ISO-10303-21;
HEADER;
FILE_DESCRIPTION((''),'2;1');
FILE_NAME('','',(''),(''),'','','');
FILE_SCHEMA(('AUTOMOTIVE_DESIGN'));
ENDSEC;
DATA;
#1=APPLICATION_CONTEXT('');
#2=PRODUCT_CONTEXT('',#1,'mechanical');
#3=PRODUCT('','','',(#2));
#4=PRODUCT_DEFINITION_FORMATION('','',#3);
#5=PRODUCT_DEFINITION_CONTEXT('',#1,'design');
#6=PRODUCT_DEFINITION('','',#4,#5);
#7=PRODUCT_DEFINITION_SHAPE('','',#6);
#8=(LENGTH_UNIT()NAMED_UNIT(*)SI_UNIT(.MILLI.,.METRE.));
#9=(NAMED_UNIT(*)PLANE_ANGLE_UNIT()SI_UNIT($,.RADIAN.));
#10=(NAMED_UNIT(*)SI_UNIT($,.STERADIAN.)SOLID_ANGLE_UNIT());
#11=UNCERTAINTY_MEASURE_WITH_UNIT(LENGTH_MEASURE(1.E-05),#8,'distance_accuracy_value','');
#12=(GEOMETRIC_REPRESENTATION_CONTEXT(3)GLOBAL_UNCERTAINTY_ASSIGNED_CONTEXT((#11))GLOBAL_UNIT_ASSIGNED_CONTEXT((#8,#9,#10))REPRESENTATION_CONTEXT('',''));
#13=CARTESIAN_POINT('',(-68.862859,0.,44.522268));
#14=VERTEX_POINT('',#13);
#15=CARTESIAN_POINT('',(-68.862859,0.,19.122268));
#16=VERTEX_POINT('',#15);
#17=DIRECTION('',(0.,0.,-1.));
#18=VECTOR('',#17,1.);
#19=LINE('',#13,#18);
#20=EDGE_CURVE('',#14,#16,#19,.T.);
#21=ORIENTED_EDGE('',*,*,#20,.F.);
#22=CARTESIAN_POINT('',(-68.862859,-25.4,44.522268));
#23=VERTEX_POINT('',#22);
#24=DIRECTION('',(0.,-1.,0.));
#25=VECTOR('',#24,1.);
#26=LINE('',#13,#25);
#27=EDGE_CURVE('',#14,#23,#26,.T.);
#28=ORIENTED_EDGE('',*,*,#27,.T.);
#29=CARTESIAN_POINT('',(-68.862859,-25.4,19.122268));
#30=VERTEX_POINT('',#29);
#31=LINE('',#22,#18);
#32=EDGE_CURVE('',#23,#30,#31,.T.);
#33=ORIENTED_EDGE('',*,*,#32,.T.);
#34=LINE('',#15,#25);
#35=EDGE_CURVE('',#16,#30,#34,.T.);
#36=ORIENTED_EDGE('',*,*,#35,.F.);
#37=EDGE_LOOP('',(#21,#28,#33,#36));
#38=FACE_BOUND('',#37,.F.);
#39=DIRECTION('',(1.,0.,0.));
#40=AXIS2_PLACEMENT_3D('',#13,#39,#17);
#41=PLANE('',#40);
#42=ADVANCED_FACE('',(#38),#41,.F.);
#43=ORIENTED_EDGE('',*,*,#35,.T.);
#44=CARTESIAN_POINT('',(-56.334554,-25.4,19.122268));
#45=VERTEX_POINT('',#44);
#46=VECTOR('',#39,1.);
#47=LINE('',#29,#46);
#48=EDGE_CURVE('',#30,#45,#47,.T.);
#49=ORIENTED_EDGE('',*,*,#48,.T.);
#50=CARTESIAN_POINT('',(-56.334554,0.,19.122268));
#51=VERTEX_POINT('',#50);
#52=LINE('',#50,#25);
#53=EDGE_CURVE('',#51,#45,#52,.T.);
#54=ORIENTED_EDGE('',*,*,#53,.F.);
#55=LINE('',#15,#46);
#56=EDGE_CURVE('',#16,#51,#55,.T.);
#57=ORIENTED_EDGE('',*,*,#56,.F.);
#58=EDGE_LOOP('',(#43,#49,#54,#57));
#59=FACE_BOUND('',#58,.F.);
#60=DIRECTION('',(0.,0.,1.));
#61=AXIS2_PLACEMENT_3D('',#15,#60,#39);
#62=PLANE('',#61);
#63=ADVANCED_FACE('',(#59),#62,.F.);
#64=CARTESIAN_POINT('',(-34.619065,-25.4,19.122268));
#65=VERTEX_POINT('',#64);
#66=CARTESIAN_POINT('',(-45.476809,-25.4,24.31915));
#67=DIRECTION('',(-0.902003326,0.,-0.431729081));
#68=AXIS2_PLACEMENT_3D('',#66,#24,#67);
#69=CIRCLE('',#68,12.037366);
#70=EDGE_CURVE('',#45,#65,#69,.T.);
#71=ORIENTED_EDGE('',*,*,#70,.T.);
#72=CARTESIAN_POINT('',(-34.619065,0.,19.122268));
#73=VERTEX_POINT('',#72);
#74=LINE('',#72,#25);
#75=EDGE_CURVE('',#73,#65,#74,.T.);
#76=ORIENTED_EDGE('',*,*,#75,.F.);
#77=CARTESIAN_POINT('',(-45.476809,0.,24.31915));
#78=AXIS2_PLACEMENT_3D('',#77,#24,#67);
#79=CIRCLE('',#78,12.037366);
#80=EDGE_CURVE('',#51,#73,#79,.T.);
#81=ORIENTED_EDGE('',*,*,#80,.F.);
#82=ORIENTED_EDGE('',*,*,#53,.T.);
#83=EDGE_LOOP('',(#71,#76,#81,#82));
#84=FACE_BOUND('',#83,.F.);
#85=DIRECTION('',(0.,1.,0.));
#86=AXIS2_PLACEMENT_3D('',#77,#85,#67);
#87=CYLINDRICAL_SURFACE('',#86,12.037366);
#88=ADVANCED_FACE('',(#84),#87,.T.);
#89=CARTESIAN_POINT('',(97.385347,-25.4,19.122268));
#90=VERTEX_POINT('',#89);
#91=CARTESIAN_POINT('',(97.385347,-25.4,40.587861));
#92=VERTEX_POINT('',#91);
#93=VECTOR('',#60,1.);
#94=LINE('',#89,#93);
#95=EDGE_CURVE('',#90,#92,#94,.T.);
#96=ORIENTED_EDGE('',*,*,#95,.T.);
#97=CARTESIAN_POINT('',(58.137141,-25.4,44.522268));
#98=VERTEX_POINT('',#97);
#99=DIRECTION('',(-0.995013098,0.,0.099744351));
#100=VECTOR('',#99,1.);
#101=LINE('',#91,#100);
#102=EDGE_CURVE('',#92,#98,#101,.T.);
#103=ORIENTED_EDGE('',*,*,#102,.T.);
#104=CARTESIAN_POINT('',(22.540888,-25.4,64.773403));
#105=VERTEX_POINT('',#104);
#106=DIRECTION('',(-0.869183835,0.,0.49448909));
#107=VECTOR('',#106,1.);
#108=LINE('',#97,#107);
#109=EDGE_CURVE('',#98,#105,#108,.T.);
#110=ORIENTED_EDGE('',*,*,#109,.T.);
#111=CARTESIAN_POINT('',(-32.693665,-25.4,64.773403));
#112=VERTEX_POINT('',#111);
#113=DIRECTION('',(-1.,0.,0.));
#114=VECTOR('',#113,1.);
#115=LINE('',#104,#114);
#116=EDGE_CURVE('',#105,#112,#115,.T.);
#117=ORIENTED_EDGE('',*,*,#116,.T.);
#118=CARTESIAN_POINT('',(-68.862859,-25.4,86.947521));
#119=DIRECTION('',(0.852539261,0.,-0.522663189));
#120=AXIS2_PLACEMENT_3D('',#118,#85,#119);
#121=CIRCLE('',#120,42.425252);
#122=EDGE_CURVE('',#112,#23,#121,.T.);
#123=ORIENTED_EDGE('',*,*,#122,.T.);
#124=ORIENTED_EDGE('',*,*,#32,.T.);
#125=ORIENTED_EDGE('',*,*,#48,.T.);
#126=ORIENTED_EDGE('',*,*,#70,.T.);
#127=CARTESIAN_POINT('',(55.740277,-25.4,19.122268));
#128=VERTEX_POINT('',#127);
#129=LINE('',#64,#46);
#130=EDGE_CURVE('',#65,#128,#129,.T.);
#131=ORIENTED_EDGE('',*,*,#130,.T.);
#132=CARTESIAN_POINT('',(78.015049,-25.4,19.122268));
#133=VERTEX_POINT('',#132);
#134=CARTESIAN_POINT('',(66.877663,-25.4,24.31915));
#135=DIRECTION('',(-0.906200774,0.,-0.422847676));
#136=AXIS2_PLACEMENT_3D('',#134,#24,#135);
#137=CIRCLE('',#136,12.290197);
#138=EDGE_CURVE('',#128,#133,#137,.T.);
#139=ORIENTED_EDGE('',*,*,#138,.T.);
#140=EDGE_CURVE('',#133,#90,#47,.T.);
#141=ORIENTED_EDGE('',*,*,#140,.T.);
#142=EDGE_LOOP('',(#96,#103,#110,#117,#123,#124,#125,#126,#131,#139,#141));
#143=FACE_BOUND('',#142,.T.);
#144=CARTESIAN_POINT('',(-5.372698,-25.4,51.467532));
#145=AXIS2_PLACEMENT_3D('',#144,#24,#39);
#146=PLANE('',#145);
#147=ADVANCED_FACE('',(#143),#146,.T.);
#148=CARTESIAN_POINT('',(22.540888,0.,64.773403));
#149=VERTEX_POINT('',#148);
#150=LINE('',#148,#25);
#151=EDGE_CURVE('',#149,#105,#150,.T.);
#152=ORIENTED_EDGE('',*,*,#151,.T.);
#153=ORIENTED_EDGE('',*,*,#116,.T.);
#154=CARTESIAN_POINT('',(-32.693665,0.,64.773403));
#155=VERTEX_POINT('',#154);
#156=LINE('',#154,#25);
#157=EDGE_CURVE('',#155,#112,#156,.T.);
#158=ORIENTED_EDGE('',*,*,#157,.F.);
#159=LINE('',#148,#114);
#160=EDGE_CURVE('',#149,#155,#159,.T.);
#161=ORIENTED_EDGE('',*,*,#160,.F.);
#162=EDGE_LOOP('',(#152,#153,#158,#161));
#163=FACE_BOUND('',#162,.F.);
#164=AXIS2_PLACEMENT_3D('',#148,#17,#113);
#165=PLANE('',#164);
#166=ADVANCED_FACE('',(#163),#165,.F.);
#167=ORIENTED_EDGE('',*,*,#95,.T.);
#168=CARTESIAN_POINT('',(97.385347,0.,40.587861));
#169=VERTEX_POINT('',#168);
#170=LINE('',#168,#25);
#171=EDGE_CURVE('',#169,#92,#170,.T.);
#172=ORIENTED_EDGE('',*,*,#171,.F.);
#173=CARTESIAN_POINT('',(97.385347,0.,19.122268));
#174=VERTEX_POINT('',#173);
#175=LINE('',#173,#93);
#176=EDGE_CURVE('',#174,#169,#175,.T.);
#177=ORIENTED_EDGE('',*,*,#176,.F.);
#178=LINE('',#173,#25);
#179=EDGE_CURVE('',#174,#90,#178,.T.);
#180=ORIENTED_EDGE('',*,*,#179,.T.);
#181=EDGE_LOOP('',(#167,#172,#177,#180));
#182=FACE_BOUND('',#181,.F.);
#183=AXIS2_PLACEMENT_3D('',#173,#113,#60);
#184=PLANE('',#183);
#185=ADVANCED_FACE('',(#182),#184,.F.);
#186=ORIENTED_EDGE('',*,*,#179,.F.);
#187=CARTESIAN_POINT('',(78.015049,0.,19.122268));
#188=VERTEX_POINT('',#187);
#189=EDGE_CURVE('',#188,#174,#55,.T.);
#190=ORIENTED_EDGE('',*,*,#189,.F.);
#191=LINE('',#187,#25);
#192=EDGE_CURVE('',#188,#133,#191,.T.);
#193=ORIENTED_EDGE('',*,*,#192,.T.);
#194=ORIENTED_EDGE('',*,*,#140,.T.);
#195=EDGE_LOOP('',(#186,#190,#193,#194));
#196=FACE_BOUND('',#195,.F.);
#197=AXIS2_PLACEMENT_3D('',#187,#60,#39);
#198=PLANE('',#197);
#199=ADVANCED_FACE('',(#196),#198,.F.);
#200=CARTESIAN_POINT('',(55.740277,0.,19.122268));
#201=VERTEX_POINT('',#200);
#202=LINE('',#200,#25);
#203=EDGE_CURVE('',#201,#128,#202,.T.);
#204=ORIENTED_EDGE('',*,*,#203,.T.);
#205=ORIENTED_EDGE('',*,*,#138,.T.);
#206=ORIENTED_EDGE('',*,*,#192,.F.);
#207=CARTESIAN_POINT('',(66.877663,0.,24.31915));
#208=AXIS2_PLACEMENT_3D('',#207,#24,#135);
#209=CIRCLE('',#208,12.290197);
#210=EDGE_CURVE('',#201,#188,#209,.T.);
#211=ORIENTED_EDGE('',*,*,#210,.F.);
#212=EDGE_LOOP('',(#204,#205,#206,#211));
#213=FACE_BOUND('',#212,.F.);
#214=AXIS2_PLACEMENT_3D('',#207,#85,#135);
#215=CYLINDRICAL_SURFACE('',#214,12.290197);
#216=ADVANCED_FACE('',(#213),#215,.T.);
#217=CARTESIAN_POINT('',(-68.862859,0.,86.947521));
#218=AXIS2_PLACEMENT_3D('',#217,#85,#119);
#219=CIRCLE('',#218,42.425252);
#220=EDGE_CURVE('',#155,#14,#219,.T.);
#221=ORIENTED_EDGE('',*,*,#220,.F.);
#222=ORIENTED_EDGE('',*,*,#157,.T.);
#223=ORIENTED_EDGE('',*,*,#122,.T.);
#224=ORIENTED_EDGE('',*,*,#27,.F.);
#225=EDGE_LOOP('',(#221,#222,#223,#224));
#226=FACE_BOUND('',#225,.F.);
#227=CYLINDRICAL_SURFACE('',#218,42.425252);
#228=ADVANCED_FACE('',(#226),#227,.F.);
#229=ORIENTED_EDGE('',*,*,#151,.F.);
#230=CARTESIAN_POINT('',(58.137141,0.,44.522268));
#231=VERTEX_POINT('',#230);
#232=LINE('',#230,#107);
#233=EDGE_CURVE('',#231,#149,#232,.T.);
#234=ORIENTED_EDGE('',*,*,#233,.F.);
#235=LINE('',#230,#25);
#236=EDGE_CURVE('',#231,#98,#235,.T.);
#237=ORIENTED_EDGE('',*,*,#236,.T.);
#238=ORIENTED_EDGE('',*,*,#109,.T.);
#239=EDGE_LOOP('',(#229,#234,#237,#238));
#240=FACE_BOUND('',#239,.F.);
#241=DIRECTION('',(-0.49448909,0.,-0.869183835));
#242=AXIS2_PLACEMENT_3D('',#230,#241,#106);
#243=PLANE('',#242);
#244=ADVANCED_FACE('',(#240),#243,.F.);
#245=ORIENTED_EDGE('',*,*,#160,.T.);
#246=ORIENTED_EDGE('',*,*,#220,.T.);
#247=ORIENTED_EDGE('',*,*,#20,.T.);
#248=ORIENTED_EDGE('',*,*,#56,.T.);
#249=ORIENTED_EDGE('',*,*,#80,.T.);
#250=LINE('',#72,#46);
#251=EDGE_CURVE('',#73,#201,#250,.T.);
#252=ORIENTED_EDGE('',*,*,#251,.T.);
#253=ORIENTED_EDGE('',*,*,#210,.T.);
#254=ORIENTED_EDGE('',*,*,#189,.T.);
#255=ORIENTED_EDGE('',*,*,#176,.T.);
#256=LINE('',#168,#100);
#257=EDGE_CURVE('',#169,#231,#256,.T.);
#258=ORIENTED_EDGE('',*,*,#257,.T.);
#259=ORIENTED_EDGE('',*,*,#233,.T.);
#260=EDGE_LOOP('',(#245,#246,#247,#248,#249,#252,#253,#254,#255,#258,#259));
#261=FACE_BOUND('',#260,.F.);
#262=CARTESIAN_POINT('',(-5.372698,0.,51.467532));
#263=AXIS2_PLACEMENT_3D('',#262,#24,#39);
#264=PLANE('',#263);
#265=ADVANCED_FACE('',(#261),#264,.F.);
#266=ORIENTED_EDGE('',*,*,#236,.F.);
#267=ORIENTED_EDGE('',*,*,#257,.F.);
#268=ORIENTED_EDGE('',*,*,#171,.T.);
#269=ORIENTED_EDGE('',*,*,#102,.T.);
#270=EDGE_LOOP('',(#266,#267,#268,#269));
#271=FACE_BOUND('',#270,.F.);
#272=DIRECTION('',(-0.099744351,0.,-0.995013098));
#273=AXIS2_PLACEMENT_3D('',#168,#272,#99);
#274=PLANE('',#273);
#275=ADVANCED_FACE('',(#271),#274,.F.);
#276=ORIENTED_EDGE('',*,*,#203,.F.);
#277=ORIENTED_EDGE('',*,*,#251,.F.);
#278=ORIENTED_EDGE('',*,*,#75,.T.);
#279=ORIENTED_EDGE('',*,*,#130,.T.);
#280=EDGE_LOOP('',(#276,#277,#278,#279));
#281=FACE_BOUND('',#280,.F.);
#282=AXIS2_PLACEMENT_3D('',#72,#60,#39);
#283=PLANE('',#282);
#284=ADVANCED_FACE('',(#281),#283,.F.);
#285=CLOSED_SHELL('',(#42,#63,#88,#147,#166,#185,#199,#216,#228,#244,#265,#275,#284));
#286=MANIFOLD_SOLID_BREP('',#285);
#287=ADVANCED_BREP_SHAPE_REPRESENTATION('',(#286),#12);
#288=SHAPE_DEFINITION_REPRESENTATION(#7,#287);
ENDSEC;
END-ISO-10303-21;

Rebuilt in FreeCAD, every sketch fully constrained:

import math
import FreeCAD as App
import Part
import Sketcher
from FreeCAD import Vector
Q = App.Units.Quantity

doc = App.newDocument("Part")
body = doc.addObject("PartDesign::Body", "Body")

# Sketch on XZ plane
sketch1 = doc.addObject("Sketcher::SketchObject", "Sketch")
body.addObject(sketch1)
sketch1.AttachmentSupport = (doc.XZ_Plane, [""])
sketch1.MapMode = "FlatFace"
sketch1.addGeometry(Part.ArcOfCircle(Part.Circle(Vector(-69, 87, 0), Vector(0, 0, 1), 42), math.radians(-90), math.radians(-32)), False)
sketch1.addGeometry(Part.LineSegment(Vector(-69, 45, 0), Vector(-69, 19, 0)), False)
sketch1.addGeometry(Part.LineSegment(Vector(-69, 19, 0), Vector(-56, 19, 0)), False)
sketch1.addGeometry(Part.ArcOfCircle(Part.Circle(Vector(-45, 24, 0), Vector(0, 0, 1), 12), math.radians(0), math.radians(206)), False)
sketch1.addGeometry(Part.ArcOfCircle(Part.Circle(Vector(-45, 24, 0), Vector(0, 0, 1), 12), math.radians(-26), math.radians(0)), False)
sketch1.addGeometry(Part.LineSegment(Vector(-35, 19, 0), Vector(56, 19, 0)), False)
sketch1.addGeometry(Part.ArcOfCircle(Part.Circle(Vector(67, 24, 0), Vector(0, 0, 1), 12), math.radians(135), math.radians(205)), False)
sketch1.addGeometry(Part.LineSegment(Vector(58, 33, 0), Vector(58, 45, 0)), False)
sketch1.addGeometry(Part.LineSegment(Vector(58, 45, 0), Vector(23, 65, 0)), False)
sketch1.addGeometry(Part.LineSegment(Vector(23, 65, 0), Vector(-33, 65, 0)), False)
sketch1.addConstraint(Sketcher.Constraint("Coincident", 0, 1, 1, 1))
sketch1.addConstraint(Sketcher.Constraint("Coincident", 1, 2, 2, 1))
sketch1.addConstraint(Sketcher.Constraint("Coincident", 2, 2, 3, 2))
sketch1.addConstraint(Sketcher.Constraint("Tangent", 3, 1, 4, 2))
sketch1.addConstraint(Sketcher.Constraint("Coincident", 4, 1, 5, 1))
sketch1.addConstraint(Sketcher.Constraint("Coincident", 5, 2, 6, 2))
sketch1.addConstraint(Sketcher.Constraint("Coincident", 6, 1, 7, 1))
sketch1.addConstraint(Sketcher.Constraint("Coincident", 7, 2, 8, 1))
sketch1.addConstraint(Sketcher.Constraint("Coincident", 8, 2, 9, 1))
sketch1.addConstraint(Sketcher.Constraint("Coincident", 9, 2, 0, 2))
sketch1.addConstraint(Sketcher.Constraint("Vertical", 1))
sketch1.addConstraint(Sketcher.Constraint("Horizontal", 2))
sketch1.addConstraint(Sketcher.Constraint("Horizontal", 5))
sketch1.addConstraint(Sketcher.Constraint("Vertical", 7))
sketch1.addConstraint(Sketcher.Constraint("Horizontal", 9))
sketch1.addConstraint(Sketcher.Constraint("Equal", 3, 4))
sketch1.addConstraint(Sketcher.Constraint("Horizontal", 4, 3, 6, 3))
sketch1.addConstraint(Sketcher.Constraint("Horizontal", 6, 3, 3, 1))
sketch1.addConstraint(Sketcher.Constraint("Horizontal", 2, 2, 4, 1))
sketch1.addConstraint(Sketcher.Constraint("Horizontal", 0, 1, 7, 2))
sketch1.addConstraint(Sketcher.Constraint("DistanceY", 1, 2, 1, 1, Q("1 in")))
sketch1.addConstraint(Sketcher.Constraint("Radius", 0, Q("42.425252 mm")))
sketch1.addConstraint(Sketcher.Constraint("Radius", 3, Q("12.037366 mm")))
sketch1.addConstraint(Sketcher.Constraint("Radius", 6, Q("12.290197 mm")))
sketch1.addConstraint(Sketcher.Constraint("DistanceX", 5, 1, 5, 2, Q("90.359342 mm")))
sketch1.addConstraint(Sketcher.Constraint("DistanceY", -1, 1, 6, 1, Q("32.959301 mm")))
sketch1.addConstraint(Sketcher.Constraint("DistanceX", 2, 1, 2, 2, Q("12.528305 mm")))
sketch1.addConstraint(Sketcher.Constraint("DistanceX", 9, 2, 9, 1, Q("55.234553 mm")))
sketch1.addConstraint(Sketcher.Constraint("DistanceY", 7, 1, 7, 2, Q("11.562968 mm")))
sketch1.addConstraint(Sketcher.Constraint("DistanceX", 0, 3, -1, 1, Q("68.862859 mm")))
sketch1.addConstraint(Sketcher.Constraint("DistanceX", 3, 3, -1, 1, Q("45.476809 mm")))
sketch1.addConstraint(Sketcher.Constraint("DistanceY", -1, 1, 3, 3, Q("24.31915 mm")))
sketch1.addConstraint(Sketcher.Constraint("DistanceX", 8, 2, 5, 2, Q("33.199389 mm")))
pad1 = doc.addObject("PartDesign::Pad", "Pad")
body.addObject(pad1)
pad1.Profile = sketch1
pad1.Length = Q("1 in")

# Sketch on XZ plane
sketch2 = doc.addObject("Sketcher::SketchObject", "Sketch001")
body.addObject(sketch2)
sketch2.AttachmentSupport = (doc.XZ_Plane, [""])
sketch2.MapMode = "FlatFace"
sketch2.addGeometry(Part.ArcOfCircle(Part.Circle(Vector(-69, 87, 0), Vector(0, 0, 1), 42), math.radians(-90), math.radians(-32)), False)
sketch2.addGeometry(Part.LineSegment(Vector(-69, 45, 0), Vector(-69, 19, 0)), False)
sketch2.addGeometry(Part.LineSegment(Vector(-69, 19, 0), Vector(-56, 19, 0)), False)
sketch2.addGeometry(Part.ArcOfCircle(Part.Circle(Vector(-45, 24, 0), Vector(0, 0, 1), 12), math.radians(-154), math.radians(-26)), False)
sketch2.addGeometry(Part.LineSegment(Vector(-35, 19, 0), Vector(56, 19, 0)), False)
sketch2.addGeometry(Part.ArcOfCircle(Part.Circle(Vector(67, 24, 0), Vector(0, 0, 1), 12), math.radians(-155), math.radians(-25)), False)
sketch2.addGeometry(Part.LineSegment(Vector(78, 19, 0), Vector(97, 19, 0)), False)
sketch2.addGeometry(Part.LineSegment(Vector(97, 19, 0), Vector(97, 41, 0)), False)
sketch2.addGeometry(Part.LineSegment(Vector(97, 41, 0), Vector(58, 45, 0)), False)
sketch2.addGeometry(Part.LineSegment(Vector(58, 45, 0), Vector(23, 65, 0)), False)
sketch2.addGeometry(Part.LineSegment(Vector(23, 65, 0), Vector(-33, 65, 0)), False)
sketch2.addConstraint(Sketcher.Constraint("Coincident", 0, 1, 1, 1))
sketch2.addConstraint(Sketcher.Constraint("Coincident", 1, 2, 2, 1))
sketch2.addConstraint(Sketcher.Constraint("Coincident", 2, 2, 3, 1))
sketch2.addConstraint(Sketcher.Constraint("Coincident", 3, 2, 4, 1))
sketch2.addConstraint(Sketcher.Constraint("Coincident", 4, 2, 5, 1))
sketch2.addConstraint(Sketcher.Constraint("Coincident", 5, 2, 6, 1))
sketch2.addConstraint(Sketcher.Constraint("Coincident", 6, 2, 7, 1))
sketch2.addConstraint(Sketcher.Constraint("Coincident", 7, 2, 8, 1))
sketch2.addConstraint(Sketcher.Constraint("Coincident", 8, 2, 9, 1))
sketch2.addConstraint(Sketcher.Constraint("Coincident", 9, 2, 10, 1))
sketch2.addConstraint(Sketcher.Constraint("Coincident", 10, 2, 0, 2))
sketch2.addConstraint(Sketcher.Constraint("Vertical", 1))
sketch2.addConstraint(Sketcher.Constraint("Horizontal", 2))
sketch2.addConstraint(Sketcher.Constraint("Horizontal", 4))
sketch2.addConstraint(Sketcher.Constraint("Horizontal", 6))
sketch2.addConstraint(Sketcher.Constraint("Vertical", 7))
sketch2.addConstraint(Sketcher.Constraint("Horizontal", 10))
sketch2.addConstraint(Sketcher.Constraint("Horizontal", 3, 3, 5, 3))
sketch2.addConstraint(Sketcher.Constraint("Horizontal", 2, 2, 3, 2))
sketch2.addConstraint(Sketcher.Constraint("Horizontal", 4, 2, 5, 2))
sketch2.addConstraint(Sketcher.Constraint("Horizontal", 0, 1, 8, 2))
sketch2.addConstraint(Sketcher.Constraint("DistanceY", 1, 2, 1, 1, Q("1 in")))
sketch2.addConstraint(Sketcher.Constraint("Radius", 0, Q("42.425252 mm")))
sketch2.addConstraint(Sketcher.Constraint("Radius", 3, Q("12.037366 mm")))
sketch2.addConstraint(Sketcher.Constraint("Radius", 5, Q("12.290197 mm")))
sketch2.addConstraint(Sketcher.Constraint("DistanceX", 4, 1, 4, 2, Q("90.359342 mm")))
sketch2.addConstraint(Sketcher.Constraint("DistanceX", 3, 2, 10, 2, Q("1.925399 mm")))
sketch2.addConstraint(Sketcher.Constraint("DistanceX", 2, 1, 2, 2, Q("12.528305 mm")))
sketch2.addConstraint(Sketcher.Constraint("DistanceX", 6, 1, 6, 2, Q("19.370298 mm")))
sketch2.addConstraint(Sketcher.Constraint("DistanceX", 10, 2, 10, 1, Q("55.234553 mm")))
sketch2.addConstraint(Sketcher.Constraint("DistanceY", 7, 1, 7, 2, Q("21.465593 mm")))
sketch2.addConstraint(Sketcher.Constraint("DistanceX", 0, 3, -1, 1, Q("68.862859 mm")))
sketch2.addConstraint(Sketcher.Constraint("DistanceY", -1, 1, 0, 3, Q("86.947521 mm")))
sketch2.addConstraint(Sketcher.Constraint("DistanceX", 3, 3, -1, 1, Q("45.476809 mm")))
sketch2.addConstraint(Sketcher.Constraint("DistanceY", -1, 1, 3, 3, Q("24.31915 mm")))
sketch2.addConstraint(Sketcher.Constraint("DistanceX", -1, 1, 8, 2, Q("58.137141 mm")))
pad2 = doc.addObject("PartDesign::Pad", "Pad001")
body.addObject(pad2)
pad2.Profile = sketch2
pad2.Length = Q("1 in")

# Sketch on XZ plane
sketch3 = doc.addObject("Sketcher::SketchObject", "Sketch002")
body.addObject(sketch3)
sketch3.AttachmentSupport = (doc.XZ_Plane, [""])
sketch3.MapMode = "FlatFace"
sketch3.addGeometry(Part.LineSegment(Vector(97, 41, 0), Vector(58, 45, 0)), False)
sketch3.addGeometry(Part.LineSegment(Vector(58, 45, 0), Vector(58, 19, 0)), False)
sketch3.addGeometry(Part.LineSegment(Vector(58, 19, 0), Vector(97, 19, 0)), False)
sketch3.addGeometry(Part.LineSegment(Vector(97, 19, 0), Vector(97, 41, 0)), False)
sketch3.addConstraint(Sketcher.Constraint("Coincident", 0, 2, 1, 1))
sketch3.addConstraint(Sketcher.Constraint("Coincident", 1, 2, 2, 1))
sketch3.addConstraint(Sketcher.Constraint("Coincident", 2, 2, 3, 1))
sketch3.addConstraint(Sketcher.Constraint("Coincident", 3, 2, 0, 1))
sketch3.addConstraint(Sketcher.Constraint("Vertical", 1))
sketch3.addConstraint(Sketcher.Constraint("Horizontal", 2))
sketch3.addConstraint(Sketcher.Constraint("Vertical", 3))
sketch3.addConstraint(Sketcher.Constraint("DistanceY", 1, 2, 1, 1, Q("1 in")))
sketch3.addConstraint(Sketcher.Constraint("DistanceX", 2, 1, 2, 2, Q("39.248206 mm")))
sketch3.addConstraint(Sketcher.Constraint("DistanceY", 3, 1, 3, 2, Q("21.465593 mm")))
sketch3.addConstraint(Sketcher.Constraint("DistanceX", -1, 1, 0, 2, Q("58.137141 mm")))
sketch3.addConstraint(Sketcher.Constraint("DistanceY", -1, 1, 0, 2, Q("44.522268 mm")))
pad3 = doc.addObject("PartDesign::Pad", "Pad002")
body.addObject(pad3)
pad3.Profile = sketch3
pad3.Length = Q("1 in")

doc.recompute()
